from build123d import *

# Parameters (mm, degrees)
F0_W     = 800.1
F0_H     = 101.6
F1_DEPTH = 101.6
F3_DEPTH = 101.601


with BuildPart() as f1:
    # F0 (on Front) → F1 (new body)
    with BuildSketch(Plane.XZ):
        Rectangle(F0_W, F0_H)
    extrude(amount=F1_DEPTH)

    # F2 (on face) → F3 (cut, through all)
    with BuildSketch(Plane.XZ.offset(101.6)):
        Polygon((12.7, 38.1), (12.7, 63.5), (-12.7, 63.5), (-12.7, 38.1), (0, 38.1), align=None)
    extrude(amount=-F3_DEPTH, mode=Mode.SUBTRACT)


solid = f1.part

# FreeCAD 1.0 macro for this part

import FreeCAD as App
import Part
import Sketcher

V = App.Vector
Q = App.Units.Quantity

doc = App.newDocument("Part")
params = doc.addObject("Spreadsheet::Sheet", "Params")
for row, (alias, value) in enumerate([
    ("sketch1_height", "4 in"),
    ("sketch1_width", "31.5 in"),
    ("pad1_length", "4 in"),
    ("sketch2_width", "1 in"),
], start=1):
    params.set(f"A{row}", alias)
    params.set(f"B{row}", "=" + value)
    params.setAlias(f"B{row}", alias)

body = doc.addObject("PartDesign::Body", "Body")

sketch1 = doc.addObject("Sketcher::SketchObject", "Sketch")
body.addObject(sketch1)
sketch1.AttachmentSupport = (doc.XZ_Plane, [""])
sketch1.MapMode = "FlatFace"
sketch1.addGeometry(Part.LineSegment(V(-400.05, 50.8, 0), V(-400.05, -50.8, 0)), False)
sketch1.addGeometry(Part.LineSegment(V(-400.05, -50.8, 0), V(400.05, -50.8, 0)), False)
sketch1.addGeometry(Part.LineSegment(V(400.05, -50.8, 0), V(400.05, 50.8, 0)), False)
sketch1.addGeometry(Part.LineSegment(V(400.05, 50.8, 0), V(-400.05, 50.8, 0)), False)
sketch1.addConstraint(Sketcher.Constraint("Coincident", 0, 2, 1, 1))
sketch1.addConstraint(Sketcher.Constraint("Coincident", 1, 2, 2, 1))
sketch1.addConstraint(Sketcher.Constraint("Coincident", 2, 2, 3, 1))
sketch1.addConstraint(Sketcher.Constraint("Coincident", 3, 2, 0, 1))
sketch1.addConstraint(Sketcher.Constraint("Vertical", 0))
sketch1.addConstraint(Sketcher.Constraint("Horizontal", 1))
sketch1.addConstraint(Sketcher.Constraint("Vertical", 2))
sketch1.addConstraint(Sketcher.Constraint("Horizontal", 3))
sketch1.addConstraint(Sketcher.Constraint("Symmetric", 0, 2, 2, 2, -1, 1))
sketch1.addConstraint(Sketcher.Constraint("DistanceY", 0, 2, 0, 1, Q("4 in")))
sketch1.addConstraint(Sketcher.Constraint("DistanceX", 1, 1, 1, 2, Q("31.5 in")))
sketch1.setExpression("Constraints[9]", "Params.sketch1_height")
sketch1.setExpression("Constraints[10]", "Params.sketch1_width")
pad1 = doc.addObject("PartDesign::Pad", "Pad")
body.addObject(pad1)
pad1.Profile = sketch1
pad1.setExpression("Length", "Params.pad1_length")

sketch2 = doc.addObject("Sketcher::SketchObject", "Sketch001")
body.addObject(sketch2)
sketch2.AttachmentSupport = (doc.XZ_Plane, [""])
sketch2.MapMode = "FlatFace"
sketch2.AttachmentOffset = App.Placement(V(0, 0, 4 * 25.4), App.Rotation())
sketch2.addGeometry(Part.LineSegment(V(12.7, 38.1, 0), V(12.7, 63.5, 0)), False)
sketch2.addGeometry(Part.LineSegment(V(12.7, 63.5, 0), V(-12.7, 63.5, 0)), False)
sketch2.addGeometry(Part.LineSegment(V(-12.7, 63.5, 0), V(-12.7, 38.1, 0)), False)
sketch2.addGeometry(Part.LineSegment(V(-12.7, 38.1, 0), V(12.7, 38.1, 0)), False)
sketch2.addConstraint(Sketcher.Constraint("Coincident", 0, 2, 1, 1))
sketch2.addConstraint(Sketcher.Constraint("Coincident", 1, 2, 2, 1))
sketch2.addConstraint(Sketcher.Constraint("Coincident", 2, 2, 3, 1))
sketch2.addConstraint(Sketcher.Constraint("Coincident", 3, 2, 0, 1))
sketch2.addConstraint(Sketcher.Constraint("Vertical", 0))
sketch2.addConstraint(Sketcher.Constraint("Horizontal", 1))
sketch2.addConstraint(Sketcher.Constraint("Vertical", 2))
sketch2.addConstraint(Sketcher.Constraint("Horizontal", 3))
sketch2.addConstraint(Sketcher.Constraint("Equal", 3, 0))
sketch2.addConstraint(Sketcher.Constraint("DistanceX", 1, 2, 1, 1, Q("1 in")))
sketch2.addConstraint(Sketcher.Constraint("DistanceX", -1, 1, 0, 2, Q("0.5 in")))
sketch2.addConstraint(Sketcher.Constraint("DistanceY", -1, 1, 0, 2, Q("2.5 in")))
sketch2.setExpression("Constraints[9]", "Params.sketch2_width")
pocket1 = doc.addObject("PartDesign::Pocket", "Pocket")
body.addObject(pocket1)
pocket1.Profile = sketch2
pocket1.Type = "ThroughAll"

doc.recompute()
